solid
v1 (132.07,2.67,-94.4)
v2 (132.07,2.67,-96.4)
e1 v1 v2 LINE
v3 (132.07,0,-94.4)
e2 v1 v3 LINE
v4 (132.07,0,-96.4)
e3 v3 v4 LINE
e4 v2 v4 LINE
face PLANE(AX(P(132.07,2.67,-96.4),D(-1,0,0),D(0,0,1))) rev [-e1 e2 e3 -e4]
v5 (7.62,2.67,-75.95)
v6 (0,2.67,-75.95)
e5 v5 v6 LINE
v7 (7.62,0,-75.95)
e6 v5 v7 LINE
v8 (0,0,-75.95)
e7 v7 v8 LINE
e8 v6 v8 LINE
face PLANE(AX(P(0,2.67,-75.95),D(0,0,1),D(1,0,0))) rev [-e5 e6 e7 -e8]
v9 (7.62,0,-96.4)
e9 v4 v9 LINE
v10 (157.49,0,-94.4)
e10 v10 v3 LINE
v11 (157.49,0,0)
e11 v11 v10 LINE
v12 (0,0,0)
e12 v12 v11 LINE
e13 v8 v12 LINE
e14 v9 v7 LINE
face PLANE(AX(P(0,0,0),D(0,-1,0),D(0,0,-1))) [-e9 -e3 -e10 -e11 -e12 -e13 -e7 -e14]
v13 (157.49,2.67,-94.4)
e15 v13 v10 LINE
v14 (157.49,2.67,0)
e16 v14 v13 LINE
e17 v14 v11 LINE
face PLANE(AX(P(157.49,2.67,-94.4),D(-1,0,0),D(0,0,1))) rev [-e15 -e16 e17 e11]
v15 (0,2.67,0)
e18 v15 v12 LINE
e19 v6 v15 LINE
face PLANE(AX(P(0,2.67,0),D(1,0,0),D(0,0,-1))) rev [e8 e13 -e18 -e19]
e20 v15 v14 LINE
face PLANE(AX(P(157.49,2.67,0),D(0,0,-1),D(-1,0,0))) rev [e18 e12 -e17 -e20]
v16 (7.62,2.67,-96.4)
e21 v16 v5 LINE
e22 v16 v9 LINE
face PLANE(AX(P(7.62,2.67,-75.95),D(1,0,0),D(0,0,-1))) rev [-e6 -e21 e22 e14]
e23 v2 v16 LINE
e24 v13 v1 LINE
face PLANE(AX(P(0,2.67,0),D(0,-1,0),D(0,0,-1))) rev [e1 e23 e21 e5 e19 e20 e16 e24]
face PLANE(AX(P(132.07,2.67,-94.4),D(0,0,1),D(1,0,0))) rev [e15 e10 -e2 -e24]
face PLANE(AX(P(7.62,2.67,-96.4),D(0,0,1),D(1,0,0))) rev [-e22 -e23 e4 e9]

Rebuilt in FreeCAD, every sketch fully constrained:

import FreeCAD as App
import Part
import Sketcher

V = App.Vector


def add_polygon(sketch, points):
    """Adds a closed chain of lines whose ends are joined by coincident constraints."""
    first, n = sketch.GeometryCount, len(points)
    for a, b in zip(points, points[1:] + points[:1]):
        sketch.addGeometry(Part.LineSegment(App.Vector(*a, 0), App.Vector(*b, 0)), False)
    for i in range(n):
        sketch.addConstraint(Sketcher.Constraint("Coincident", first + i, 2, first + (i + 1) % n, 1))

doc = App.newDocument("Part")
body = doc.addObject("PartDesign::Body", "Body")

sketch1 = body.newObject("Sketcher::SketchObject", "Sketch")
sketch1.AttachmentSupport = (doc.getObject("XZ_Plane"), [""])
sketch1.MapMode = "FlatFace"
add_polygon(sketch1, [(0, -76), (0, 0), (157.5, 0), (157.5, -94.4), (132.1, -94.4), (132.1, -96.4), (7.6, -96.4), (7.6, -76)])
sketch1.addConstraint(Sketcher.Constraint("Vertical", 0))
sketch1.addConstraint(Sketcher.Constraint("Horizontal", 1))
sketch1.addConstraint(Sketcher.Constraint("Vertical", 2))
sketch1.addConstraint(Sketcher.Constraint("Horizontal", 3))
sketch1.addConstraint(Sketcher.Constraint("Vertical", 4))
sketch1.addConstraint(Sketcher.Constraint("Horizontal", 5))
sketch1.addConstraint(Sketcher.Constraint("Vertical", 6))
sketch1.addConstraint(Sketcher.Constraint("Horizontal", 7))
sketch1.addConstraint(Sketcher.Constraint("Coincident", 0, 2, -1, 1))
sketch1.addConstraint(Sketcher.Constraint("DistanceY", 4, 2, 4, 1, 2.0))
sketch1.addConstraint(Sketcher.Constraint("DistanceY", 2, 2, 2, 1, 94.4))
sketch1.addConstraint(Sketcher.Constraint("DistanceX", 1, 1, 1, 2, 157.49))
sketch1.addConstraint(Sketcher.Constraint("DistanceX", 3, 2, 3, 1, 25.42))
sketch1.addConstraint(Sketcher.Constraint("DistanceX", 5, 2, 5, 1, 124.45))
sketch1.addConstraint(Sketcher.Constraint("DistanceY", 0, 1, 0, 2, 75.95))
pad1 = body.newObject("PartDesign::Pad", "Pad")
pad1.Profile = sketch1
pad1.Length = 2.67
pad1.Reversed = True

doc.recompute()
